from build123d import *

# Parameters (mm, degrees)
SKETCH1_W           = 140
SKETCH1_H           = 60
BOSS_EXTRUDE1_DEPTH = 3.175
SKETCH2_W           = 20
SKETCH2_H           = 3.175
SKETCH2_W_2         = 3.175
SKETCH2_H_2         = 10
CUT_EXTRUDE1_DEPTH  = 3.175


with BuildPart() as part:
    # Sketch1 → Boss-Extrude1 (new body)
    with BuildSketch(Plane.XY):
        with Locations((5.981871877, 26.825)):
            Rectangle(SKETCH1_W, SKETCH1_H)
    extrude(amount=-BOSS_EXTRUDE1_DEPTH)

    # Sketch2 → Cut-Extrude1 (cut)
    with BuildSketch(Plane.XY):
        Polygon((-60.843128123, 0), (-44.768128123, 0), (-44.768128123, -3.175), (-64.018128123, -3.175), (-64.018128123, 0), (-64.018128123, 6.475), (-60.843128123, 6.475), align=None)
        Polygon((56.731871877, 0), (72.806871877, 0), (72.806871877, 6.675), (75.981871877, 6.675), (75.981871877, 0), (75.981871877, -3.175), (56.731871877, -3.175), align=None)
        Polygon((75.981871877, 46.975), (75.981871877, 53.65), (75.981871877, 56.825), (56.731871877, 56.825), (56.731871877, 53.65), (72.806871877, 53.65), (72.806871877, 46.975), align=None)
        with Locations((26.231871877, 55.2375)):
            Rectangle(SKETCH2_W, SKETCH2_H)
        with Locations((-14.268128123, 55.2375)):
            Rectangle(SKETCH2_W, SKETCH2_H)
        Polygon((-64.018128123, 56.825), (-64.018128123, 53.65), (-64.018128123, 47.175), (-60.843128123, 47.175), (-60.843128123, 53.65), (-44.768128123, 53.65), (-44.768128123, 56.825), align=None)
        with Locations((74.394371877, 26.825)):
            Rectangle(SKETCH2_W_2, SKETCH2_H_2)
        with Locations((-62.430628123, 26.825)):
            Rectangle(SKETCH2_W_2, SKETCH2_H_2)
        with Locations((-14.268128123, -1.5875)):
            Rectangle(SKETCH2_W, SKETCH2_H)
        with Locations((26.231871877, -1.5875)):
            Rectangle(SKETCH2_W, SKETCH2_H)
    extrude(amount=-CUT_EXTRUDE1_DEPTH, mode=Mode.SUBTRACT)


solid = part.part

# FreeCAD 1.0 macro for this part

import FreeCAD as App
import Part
import Sketcher

V = App.Vector
Q = App.Units.Quantity

doc = App.newDocument("Part")
params = doc.addObject("Spreadsheet::Sheet", "Params")
for row, (alias, value) in enumerate([
    ("sketch1_width", "140 mm"),
    ("sketch1_height", "60 mm"),
    ("pad1_length", "3.175 mm"),
    ("sketch2_width", "20 mm"),
    ("sketch2_height", "10 mm"),
    ("sketch2_width2", "19.25 mm"),
    ("sketch2_height2", "9.65 mm"),
    ("sketch2_height3", "9.85 mm"),
    ("pocket1_length", "3.175 mm"),
], start=1):
    params.set(f"A{row}", alias)
    params.set(f"B{row}", "=" + value)
    params.setAlias(f"B{row}", alias)

body = doc.addObject("PartDesign::Body", "Body")

sketch1 = body.newObject("Sketcher::SketchObject", "Sketch")
sketch1.AttachmentSupport = (doc.getObject("XY_Plane"), [""])
sketch1.MapMode = "FlatFace"
sketch1.addGeometry(Part.LineSegment(V(-64, 57, 0), V(-64, -3, 0)), False)
sketch1.addGeometry(Part.LineSegment(V(-64, -3, 0), V(76, -3, 0)), False)
sketch1.addGeometry(Part.LineSegment(V(76, -3, 0), V(76, 57, 0)), False)
sketch1.addGeometry(Part.LineSegment(V(76, 57, 0), V(-64, 57, 0)), False)
sketch1.addConstraint(Sketcher.Constraint("Coincident", 0, 2, 1, 1))
sketch1.addConstraint(Sketcher.Constraint("Coincident", 1, 2, 2, 1))
sketch1.addConstraint(Sketcher.Constraint("Coincident", 2, 2, 3, 1))
sketch1.addConstraint(Sketcher.Constraint("Coincident", 3, 2, 0, 1))
sketch1.addConstraint(Sketcher.Constraint("Vertical", 0))
sketch1.addConstraint(Sketcher.Constraint("Horizontal", 1))
sketch1.addConstraint(Sketcher.Constraint("Vertical", 2))
sketch1.addConstraint(Sketcher.Constraint("Horizontal", 3))
sketch1.addConstraint(Sketcher.Constraint("DistanceX", 1, 1, 1, 2, Q("140 mm")))
sketch1.addConstraint(Sketcher.Constraint("DistanceY", 0, 2, 0, 1, Q("60 mm")))
sketch1.addConstraint(Sketcher.Constraint("DistanceY", 0, 2, -1, 1, Q("3.175 mm")))
sketch1.addConstraint(Sketcher.Constraint("DistanceX", 0, 2, -1, 1, Q("64.018128 mm")))
sketch1.setExpression("Constraints[8]", "Params.sketch1_width")
sketch1.setExpression("Constraints[9]", "Params.sketch1_height")
pad1 = body.newObject("PartDesign::Pad", "Pad")
pad1.Profile = sketch1
pad1.setExpression("Length", "Params.pad1_length")
pad1.Reversed = True

sketch2 = body.newObject("Sketcher::SketchObject", "Sketch001")
sketch2.AttachmentSupport = (doc.getObject("XY_Plane"), [""])
sketch2.MapMode = "FlatFace"
sketch2.addGeometry(Part.LineSegment(V(-44.8, 0, 0), V(-60.8, 0, 0)), False)
sketch2.addGeometry(Part.LineSegment(V(-60.8, 0, 0), V(-60.8, 6.5, 0)), False)
sketch2.addGeometry(Part.LineSegment(V(-60.8, 6.5, 0), V(-64, 6.5, 0)), False)
sketch2.addGeometry(Part.LineSegment(V(-64, 6.5, 0), V(-64, -3.2, 0)), False)
sketch2.addGeometry(Part.LineSegment(V(-64, -3.2, 0), V(-44.8, -3.2, 0)), False)
sketch2.addGeometry(Part.LineSegment(V(-44.8, -3.2, 0), V(-44.8, 0, 0)), False)
sketch2.addGeometry(Part.LineSegment(V(72.8, 0, 0), V(56.7, 0, 0)), False)
sketch2.addGeometry(Part.LineSegment(V(56.7, 0, 0), V(56.7, -3.2, 0)), False)
sketch2.addGeometry(Part.LineSegment(V(56.7, -3.2, 0), V(76, -3.2, 0)), False)
sketch2.addGeometry(Part.LineSegment(V(76, -3.2, 0), V(76, 6.7, 0)), False)
sketch2.addGeometry(Part.LineSegment(V(76, 6.7, 0), V(72.8, 6.7, 0)), False)
sketch2.addGeometry(Part.LineSegment(V(72.8, 6.7, 0), V(72.8, 0, 0)), False)
sketch2.addGeometry(Part.LineSegment(V(76, 47, 0), V(76, 56.8, 0)), False)
sketch2.addGeometry(Part.LineSegment(V(76, 56.8, 0), V(56.7, 56.8, 0)), False)
sketch2.addGeometry(Part.LineSegment(V(56.7, 56.8, 0), V(56.7, 53.6, 0)), False)
sketch2.addGeometry(Part.LineSegment(V(56.7, 53.6, 0), V(72.8, 53.6, 0)), False)
sketch2.addGeometry(Part.LineSegment(V(72.8, 53.6, 0), V(72.8, 47, 0)), False)
sketch2.addGeometry(Part.LineSegment(V(72.8, 47, 0), V(76, 47, 0)), False)
sketch2.addGeometry(Part.LineSegment(V(16.2, 56.8, 0), V(16.2, 53.6, 0)), False)
sketch2.addGeometry(Part.LineSegment(V(16.2, 53.6, 0), V(36.2, 53.6, 0)), False)
sketch2.addGeometry(Part.LineSegment(V(36.2, 53.6, 0), V(36.2, 56.8, 0)), False)
sketch2.addGeometry(Part.LineSegment(V(36.2, 56.8, 0), V(16.2, 56.8, 0)), False)
sketch2.addGeometry(Part.LineSegment(V(-24.3, 56.8, 0), V(-24.3, 53.6, 0)), False)
sketch2.addGeometry(Part.LineSegment(V(-24.3, 53.6, 0), V(-4.3, 53.6, 0)), False)
sketch2.addGeometry(Part.LineSegment(V(-4.3, 53.6, 0), V(-4.3, 56.8, 0)), False)
sketch2.addGeometry(Part.LineSegment(V(-4.3, 56.8, 0), V(-24.3, 56.8, 0)), False)
sketch2.addGeometry(Part.LineSegment(V(-64, 56.8, 0), V(-64, 47.2, 0)), False)
sketch2.addGeometry(Part.LineSegment(V(-64, 47.2, 0), V(-60.8, 47.2, 0)), False)
sketch2.addGeometry(Part.LineSegment(V(-60.8, 47.2, 0), V(-60.8, 53.6, 0)), False)
sketch2.addGeometry(Part.LineSegment(V(-60.8, 53.6, 0), V(-44.8, 53.6, 0)), False)
sketch2.addGeometry(Part.LineSegment(V(-44.8, 53.6, 0), V(-44.8, 56.8, 0)), False)
sketch2.addGeometry(Part.LineSegment(V(-44.8, 56.8, 0), V(-64, 56.8, 0)), False)
sketch2.addGeometry(Part.LineSegment(V(72.8, 31.8, 0), V(72.8, 21.8, 0)), False)
sketch2.addGeometry(Part.LineSegment(V(72.8, 21.8, 0), V(76, 21.8, 0)), False)
sketch2.addGeometry(Part.LineSegment(V(76, 21.8, 0), V(76, 31.8, 0)), False)
sketch2.addGeometry(Part.LineSegment(V(76, 31.8, 0), V(72.8, 31.8, 0)), False)
sketch2.addGeometry(Part.LineSegment(V(-64, 31.8, 0), V(-64, 21.8, 0)), False)
sketch2.addGeometry(Part.LineSegment(V(-64, 21.8, 0), V(-60.8, 21.8, 0)), False)
sketch2.addGeometry(Part.LineSegment(V(-60.8, 21.8, 0), V(-60.8, 31.8, 0)), False)
sketch2.addGeometry(Part.LineSegment(V(-60.8, 31.8, 0), V(-64, 31.8, 0)), False)
sketch2.addGeometry(Part.LineSegment(V(-24.3, 0, 0), V(-24.3, -3.2, 0)), False)
sketch2.addGeometry(Part.LineSegment(V(-24.3, -3.2, 0), V(-4.3, -3.2, 0)), False)
sketch2.addGeometry(Part.LineSegment(V(-4.3, -3.2, 0), V(-4.3, 0, 0)), False)
sketch2.addGeometry(Part.LineSegment(V(-4.3, 0, 0), V(-24.3, 0, 0)), False)
sketch2.addGeometry(Part.LineSegment(V(16.2, 0, 0), V(16.2, -3.2, 0)), False)
sketch2.addGeometry(Part.LineSegment(V(16.2, -3.2, 0), V(36.2, -3.2, 0)), False)
sketch2.addGeometry(Part.LineSegment(V(36.2, -3.2, 0), V(36.2, 0, 0)), False)
sketch2.addGeometry(Part.LineSegment(V(36.2, 0, 0), V(16.2, 0, 0)), False)
sketch2.addConstraint(Sketcher.Constraint("Coincident", 0, 2, 1, 1))
sketch2.addConstraint(Sketcher.Constraint("Coincident", 1, 2, 2, 1))
sketch2.addConstraint(Sketcher.Constraint("Coincident", 2, 2, 3, 1))
sketch2.addConstraint(Sketcher.Constraint("Coincident", 3, 2, 4, 1))
sketch2.addConstraint(Sketcher.Constraint("Coincident", 4, 2, 5, 1))
sketch2.addConstraint(Sketcher.Constraint("Coincident", 5, 2, 0, 1))
sketch2.addConstraint(Sketcher.Constraint("Coincident", 6, 2, 7, 1))
sketch2.addConstraint(Sketcher.Constraint("Coincident", 7, 2, 8, 1))
sketch2.addConstraint(Sketcher.Constraint("Coincident", 8, 2, 9, 1))
sketch2.addConstraint(Sketcher.Constraint("Coincident", 9, 2, 10, 1))
sketch2.addConstraint(Sketcher.Constraint("Coincident", 10, 2, 11, 1))
sketch2.addConstraint(Sketcher.Constraint("Coincident", 11, 2, 6, 1))
sketch2.addConstraint(Sketcher.Constraint("Coincident", 12, 2, 13, 1))
sketch2.addConstraint(Sketcher.Constraint("Coincident", 13, 2, 14, 1))
sketch2.addConstraint(Sketcher.Constraint("Coincident", 14, 2, 15, 1))
sketch2.addConstraint(Sketcher.Constraint("Coincident", 15, 2, 16, 1))
sketch2.addConstraint(Sketcher.Constraint("Coincident", 16, 2, 17, 1))
sketch2.addConstraint(Sketcher.Constraint("Coincident", 17, 2, 12, 1))
sketch2.addConstraint(Sketcher.Constraint("Coincident", 18, 2, 19, 1))
sketch2.addConstraint(Sketcher.Constraint("Coincident", 19, 2, 20, 1))
sketch2.addConstraint(Sketcher.Constraint("Coincident", 20, 2, 21, 1))
sketch2.addConstraint(Sketcher.Constraint("Coincident", 21, 2, 18, 1))
sketch2.addConstraint(Sketcher.Constraint("Coincident", 22, 2, 23, 1))
sketch2.addConstraint(Sketcher.Constraint("Coincident", 23, 2, 24, 1))
sketch2.addConstraint(Sketcher.Constraint("Coincident", 24, 2, 25, 1))
sketch2.addConstraint(Sketcher.Constraint("Coincident", 25, 2, 22, 1))
sketch2.addConstraint(Sketcher.Constraint("Coincident", 26, 2, 27, 1))
sketch2.addConstraint(Sketcher.Constraint("Coincident", 27, 2, 28, 1))
sketch2.addConstraint(Sketcher.Constraint("Coincident", 28, 2, 29, 1))
sketch2.addConstraint(Sketcher.Constraint("Coincident", 29, 2, 30, 1))
sketch2.addConstraint(Sketcher.Constraint("Coincident", 30, 2, 31, 1))
sketch2.addConstraint(Sketcher.Constraint("Coincident", 31, 2, 26, 1))
sketch2.addConstraint(Sketcher.Constraint("Coincident", 32, 2, 33, 1))
sketch2.addConstraint(Sketcher.Constraint("Coincident", 33, 2, 34, 1))
sketch2.addConstraint(Sketcher.Constraint("Coincident", 34, 2, 35, 1))
sketch2.addConstraint(Sketcher.Constraint("Coincident", 35, 2, 32, 1))
sketch2.addConstraint(Sketcher.Constraint("Coincident", 36, 2, 37, 1))
sketch2.addConstraint(Sketcher.Constraint("Coincident", 37, 2, 38, 1))
sketch2.addConstraint(Sketcher.Constraint("Coincident", 38, 2, 39, 1))
sketch2.addConstraint(Sketcher.Constraint("Coincident", 39, 2, 36, 1))
sketch2.addConstraint(Sketcher.Constraint("Coincident", 40, 2, 41, 1))
sketch2.addConstraint(Sketcher.Constraint("Coincident", 41, 2, 42, 1))
sketch2.addConstraint(Sketcher.Constraint("Coincident", 42, 2, 43, 1))
sketch2.addConstraint(Sketcher.Constraint("Coincident", 43, 2, 40, 1))
sketch2.addConstraint(Sketcher.Constraint("Coincident", 44, 2, 45, 1))
sketch2.addConstraint(Sketcher.Constraint("Coincident", 45, 2, 46, 1))
sketch2.addConstraint(Sketcher.Constraint("Coincident", 46, 2, 47, 1))
sketch2.addConstraint(Sketcher.Constraint("Coincident", 47, 2, 44, 1))
sketch2.addConstraint(Sketcher.Constraint("Horizontal", 0))
sketch2.addConstraint(Sketcher.Constraint("Vertical", 1))
sketch2.addConstraint(Sketcher.Constraint("Horizontal", 2))
sketch2.addConstraint(Sketcher.Constraint("Vertical", 3))
sketch2.addConstraint(Sketcher.Constraint("Horizontal", 4))
sketch2.addConstraint(Sketcher.Constraint("Vertical", 5))
sketch2.addConstraint(Sketcher.Constraint("Horizontal", 6))
sketch2.addConstraint(Sketcher.Constraint("Vertical", 7))
sketch2.addConstraint(Sketcher.Constraint("Horizontal", 8))
sketch2.addConstraint(Sketcher.Constraint("Vertical", 9))
sketch2.addConstraint(Sketcher.Constraint("Horizontal", 10))
sketch2.addConstraint(Sketcher.Constraint("Vertical", 11))
sketch2.addConstraint(Sketcher.Constraint("Vertical", 12))
sketch2.addConstraint(Sketcher.Constraint("Horizontal", 13))
sketch2.addConstraint(Sketcher.Constraint("Vertical", 14))
sketch2.addConstraint(Sketcher.Constraint("Horizontal", 15))
sketch2.addConstraint(Sketcher.Constraint("Vertical", 16))
sketch2.addConstraint(Sketcher.Constraint("Horizontal", 17))
sketch2.addConstraint(Sketcher.Constraint("Vertical", 18))
sketch2.addConstraint(Sketcher.Constraint("Horizontal", 19))
sketch2.addConstraint(Sketcher.Constraint("Vertical", 20))
sketch2.addConstraint(Sketcher.Constraint("Horizontal", 21))
sketch2.addConstraint(Sketcher.Constraint("Vertical", 22))
sketch2.addConstraint(Sketcher.Constraint("Horizontal", 23))
sketch2.addConstraint(Sketcher.Constraint("Vertical", 24))
sketch2.addConstraint(Sketcher.Constraint("Horizontal", 25))
sketch2.addConstraint(Sketcher.Constraint("Vertical", 26))
sketch2.addConstraint(Sketcher.Constraint("Horizontal", 27))
sketch2.addConstraint(Sketcher.Constraint("Vertical", 28))
sketch2.addConstraint(Sketcher.Constraint("Horizontal", 29))
sketch2.addConstraint(Sketcher.Constraint("Vertical", 30))
sketch2.addConstraint(Sketcher.Constraint("Horizontal", 31))
sketch2.addConstraint(Sketcher.Constraint("Vertical", 32))
sketch2.addConstraint(Sketcher.Constraint("Horizontal", 33))
sketch2.addConstraint(Sketcher.Constraint("Vertical", 34))
sketch2.addConstraint(Sketcher.Constraint("Horizontal", 35))
sketch2.addConstraint(Sketcher.Constraint("Vertical", 36))
sketch2.addConstraint(Sketcher.Constraint("Horizontal", 37))
sketch2.addConstraint(Sketcher.Constraint("Vertical", 38))
sketch2.addConstraint(Sketcher.Constraint("Horizontal", 39))
sketch2.addConstraint(Sketcher.Constraint("Vertical", 40))
sketch2.addConstraint(Sketcher.Constraint("Horizontal", 41))
sketch2.addConstraint(Sketcher.Constraint("Vertical", 42))
sketch2.addConstraint(Sketcher.Constraint("Horizontal", 43))
sketch2.addConstraint(Sketcher.Constraint("Vertical", 44))
sketch2.addConstraint(Sketcher.Constraint("Horizontal", 45))
sketch2.addConstraint(Sketcher.Constraint("Vertical", 46))
sketch2.addConstraint(Sketcher.Constraint("Horizontal", 47))
sketch2.addConstraint(Sketcher.Constraint("PointOnObject", 0, 2, -1))
sketch2.addConstraint(Sketcher.Constraint("PointOnObject", 6, 2, -1))
sketch2.addConstraint(Sketcher.Constraint("PointOnObject", 42, 2, -1))
sketch2.addConstraint(Sketcher.Constraint("PointOnObject", 46, 2, -1))
sketch2.addConstraint(Sketcher.Constraint("Horizontal", 4, 2, 7, 2))
sketch2.addConstraint(Sketcher.Constraint("Horizontal", 15, 2, 18, 2))
sketch2.addConstraint(Sketcher.Constraint("Horizontal", 13, 2, 20, 2))
sketch2.addConstraint(Sketcher.Constraint("Horizontal", 19, 2, 22, 2))
sketch2.addConstraint(Sketcher.Constraint("Horizontal", 21, 2, 24, 2))
sketch2.addConstraint(Sketcher.Constraint("Horizontal", 23, 2, 28, 2))
sketch2.addConstraint(Sketcher.Constraint("Horizontal", 25, 2, 30, 2))
sketch2.addConstraint(Sketcher.Constraint("Horizontal", 33, 2, 36, 2))
sketch2.addConstraint(Sketcher.Constraint("Horizontal", 35, 2, 38, 2))
sketch2.addConstraint(Sketcher.Constraint("Horizontal", 8, 2, 40, 2))
sketch2.addConstraint(Sketcher.Constraint("Horizontal", 41, 2, 44, 2))
sketch2.addConstraint(Sketcher.Constraint("Vertical", 9, 2, 12, 2))
sketch2.addConstraint(Sketcher.Constraint("Vertical", 7, 2, 13, 2))
sketch2.addConstraint(Sketcher.Constraint("Vertical", 11, 2, 15, 2))
sketch2.addConstraint(Sketcher.Constraint("Vertical", 3, 2, 26, 2))
sketch2.addConstraint(Sketcher.Constraint("Vertical", 1, 2, 27, 2))
sketch2.addConstraint(Sketcher.Constraint("Vertical", 5, 2, 29, 2))
sketch2.addConstraint(Sketcher.Constraint("Vertical", 16, 2, 32, 2))
sketch2.addConstraint(Sketcher.Constraint("Vertical", 17, 2, 33, 2))
sketch2.addConstraint(Sketcher.Constraint("Vertical", 31, 2, 36, 2))
sketch2.addConstraint(Sketcher.Constraint("Vertical", 28, 2, 37, 2))
sketch2.addConstraint(Sketcher.Constraint("Vertical", 25, 2, 40, 2))
sketch2.addConstraint(Sketcher.Constraint("Vertical", 24, 2, 41, 2))
sketch2.addConstraint(Sketcher.Constraint("Vertical", 21, 2, 44, 2))
sketch2.addConstraint(Sketcher.Constraint("Vertical", 20, 2, 45, 2))
sketch2.addConstraint(Sketcher.Constraint("Equal", 0, 6))
sketch2.addConstraint(Sketcher.Constraint("Equal", 4, 8))
sketch2.addConstraint(Sketcher.Constraint("Equal", 21, 23))
sketch2.addConstraint(Sketcher.Constraint("Equal", 39, 5))
sketch2.addConstraint(Sketcher.Constraint("Equal", 9, 12))
sketch2.addConstraint(Sketcher.Constraint("Equal", 7, 14))
sketch2.addConstraint(Sketcher.Constraint("Equal", 3, 26))
sketch2.addConstraint(Sketcher.Constraint("DistanceX", 19, 1, 19, 2, Q("20 mm")))
sketch2.addConstraint(Sketcher.Constraint("DistanceY", 32, 2, 32, 1, Q("10 mm")))
sketch2.addConstraint(Sketcher.Constraint("DistanceY", 8, 2, 12, 2, Q("60 mm")))
sketch2.addConstraint(Sketcher.Constraint("DistanceY", 8, 2, 32, 2, Q("25 mm")))
sketch2.addConstraint(Sketcher.Constraint("DistanceX", 4, 1, 4, 2, Q("19.25 mm")))
sketch2.addConstraint(Sketcher.Constraint("DistanceY", 3, 2, 3, 1, Q("9.65 mm")))
sketch2.addConstraint(Sketcher.Constraint("DistanceY", 9, 1, 9, 2, Q("9.85 mm")))
sketch2.addConstraint(Sketcher.Constraint("DistanceX", 5, 2, 6, 2, Q("101.5 mm")))
sketch2.addConstraint(Sketcher.Constraint("DistanceX", 18, 2, 14, 2, Q("40.5 mm")))
sketch2.addConstraint(Sketcher.Constraint("DistanceX", 22, 2, 18, 2, Q("40.5 mm")))
sketch2.addConstraint(Sketcher.Constraint("DistanceX", 0, 2, 0, 1, Q("16.075 mm")))
sketch2.addConstraint(Sketcher.Constraint("DistanceX", 0, 2, -1, 1, Q("60.843128 mm")))
sketch2.setExpression("Constraints[132]", "Params.sketch2_width")
sketch2.setExpression("Constraints[133]", "Params.sketch2_height")
sketch2.setExpression("Constraints[136]", "Params.sketch2_width2")
sketch2.setExpression("Constraints[137]", "Params.sketch2_height2")
sketch2.setExpression("Constraints[138]", "Params.sketch2_height3")
pocket1 = body.newObject("PartDesign::Pocket", "Pocket")
pocket1.Profile = sketch2
pocket1.setExpression("Length", "Params.pocket1_length")

doc.recompute()
